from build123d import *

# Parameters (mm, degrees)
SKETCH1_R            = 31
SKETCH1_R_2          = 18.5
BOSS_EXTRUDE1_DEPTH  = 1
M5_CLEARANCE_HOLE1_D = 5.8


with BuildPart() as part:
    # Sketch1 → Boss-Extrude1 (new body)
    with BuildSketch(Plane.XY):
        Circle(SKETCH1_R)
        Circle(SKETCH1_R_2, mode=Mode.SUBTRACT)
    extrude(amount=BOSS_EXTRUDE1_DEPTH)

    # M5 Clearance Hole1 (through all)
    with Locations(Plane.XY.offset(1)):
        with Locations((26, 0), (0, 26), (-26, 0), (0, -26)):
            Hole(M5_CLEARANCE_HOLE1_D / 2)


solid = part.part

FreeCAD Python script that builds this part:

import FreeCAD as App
import Part
import Sketcher

V = App.Vector
Q = App.Units.Quantity

doc = App.newDocument("Part")
body = doc.addObject("PartDesign::Body", "Body")

# Sketch on XY plane
sketch1 = doc.addObject("Sketcher::SketchObject", "Sketch")
body.addObject(sketch1)
sketch1.AttachmentSupport = (doc.XY_Plane, [""])
sketch1.MapMode = "FlatFace"
sketch1.addGeometry([
    Part.Circle(V(0, 0, 0), V(0, 0, 1), 31),
    Part.Circle(V(0, 0, 0), V(0, 0, 1), 18),
], False)
sketch1.addConstraint([
    Sketcher.Constraint("Coincident", 0, 3, -1, 1),
    Sketcher.Constraint("Coincident", 1, 3, -1, 1),
    Sketcher.Constraint("Diameter", 0, Q("62 mm")),
    Sketcher.Constraint("Diameter", 1, Q("37 mm")),
])
pad1 = doc.addObject("PartDesign::Pad", "Pad")
body.addObject(pad1)
pad1.Profile = sketch1
pad1.Length = 1

# Sketch on XY plane
sketch2 = doc.addObject("Sketcher::SketchObject", "Sketch001")
body.addObject(sketch2)
sketch2.AttachmentSupport = (doc.XY_Plane, [""])
sketch2.MapMode = "FlatFace"
sketch2.AttachmentOffset = App.Placement(V(0, 0, 1), App.Rotation())
sketch2.addGeometry([
    Part.Circle(V(26, 0, 0), V(0, 0, 1), 2.9),
    Part.Circle(V(0, 26, 0), V(0, 0, 1), 2.9),
    Part.Circle(V(-26, 0, 0), V(0, 0, 1), 2.9),
    Part.Circle(V(0, -26, 0), V(0, 0, 1), 2.9),
], False)
sketch2.addConstraint([
    Sketcher.Constraint("Equal", 0, 1),
    Sketcher.Constraint("Equal", 1, 2),
    Sketcher.Constraint("Equal", 2, 3),
    Sketcher.Constraint("Symmetric", 0, 3, 2, 3, -1, 1),
    Sketcher.Constraint("Symmetric", 1, 3, 3, 3, -1, 1),
    Sketcher.Constraint("PointOnObject", 0, 3, -1),
    Sketcher.Constraint("PointOnObject", 1, 3, -2),
    Sketcher.Constraint("Diameter", 0, Q("5.8 mm")),
    Sketcher.Constraint("DistanceX", -1, 1, 0, 3, Q("26 mm")),
    Sketcher.Constraint("DistanceY", -1, 1, 1, 3, Q("26 mm")),
])
doc.recompute()
hole = doc.addObject("PartDesign::Hole", "Hole")
body.addObject(hole)
hole.Profile = sketch2
hole.ThreadType = "None"
hole.Diameter = 5.8
hole.DepthType = "ThroughAll"

doc.recompute()
